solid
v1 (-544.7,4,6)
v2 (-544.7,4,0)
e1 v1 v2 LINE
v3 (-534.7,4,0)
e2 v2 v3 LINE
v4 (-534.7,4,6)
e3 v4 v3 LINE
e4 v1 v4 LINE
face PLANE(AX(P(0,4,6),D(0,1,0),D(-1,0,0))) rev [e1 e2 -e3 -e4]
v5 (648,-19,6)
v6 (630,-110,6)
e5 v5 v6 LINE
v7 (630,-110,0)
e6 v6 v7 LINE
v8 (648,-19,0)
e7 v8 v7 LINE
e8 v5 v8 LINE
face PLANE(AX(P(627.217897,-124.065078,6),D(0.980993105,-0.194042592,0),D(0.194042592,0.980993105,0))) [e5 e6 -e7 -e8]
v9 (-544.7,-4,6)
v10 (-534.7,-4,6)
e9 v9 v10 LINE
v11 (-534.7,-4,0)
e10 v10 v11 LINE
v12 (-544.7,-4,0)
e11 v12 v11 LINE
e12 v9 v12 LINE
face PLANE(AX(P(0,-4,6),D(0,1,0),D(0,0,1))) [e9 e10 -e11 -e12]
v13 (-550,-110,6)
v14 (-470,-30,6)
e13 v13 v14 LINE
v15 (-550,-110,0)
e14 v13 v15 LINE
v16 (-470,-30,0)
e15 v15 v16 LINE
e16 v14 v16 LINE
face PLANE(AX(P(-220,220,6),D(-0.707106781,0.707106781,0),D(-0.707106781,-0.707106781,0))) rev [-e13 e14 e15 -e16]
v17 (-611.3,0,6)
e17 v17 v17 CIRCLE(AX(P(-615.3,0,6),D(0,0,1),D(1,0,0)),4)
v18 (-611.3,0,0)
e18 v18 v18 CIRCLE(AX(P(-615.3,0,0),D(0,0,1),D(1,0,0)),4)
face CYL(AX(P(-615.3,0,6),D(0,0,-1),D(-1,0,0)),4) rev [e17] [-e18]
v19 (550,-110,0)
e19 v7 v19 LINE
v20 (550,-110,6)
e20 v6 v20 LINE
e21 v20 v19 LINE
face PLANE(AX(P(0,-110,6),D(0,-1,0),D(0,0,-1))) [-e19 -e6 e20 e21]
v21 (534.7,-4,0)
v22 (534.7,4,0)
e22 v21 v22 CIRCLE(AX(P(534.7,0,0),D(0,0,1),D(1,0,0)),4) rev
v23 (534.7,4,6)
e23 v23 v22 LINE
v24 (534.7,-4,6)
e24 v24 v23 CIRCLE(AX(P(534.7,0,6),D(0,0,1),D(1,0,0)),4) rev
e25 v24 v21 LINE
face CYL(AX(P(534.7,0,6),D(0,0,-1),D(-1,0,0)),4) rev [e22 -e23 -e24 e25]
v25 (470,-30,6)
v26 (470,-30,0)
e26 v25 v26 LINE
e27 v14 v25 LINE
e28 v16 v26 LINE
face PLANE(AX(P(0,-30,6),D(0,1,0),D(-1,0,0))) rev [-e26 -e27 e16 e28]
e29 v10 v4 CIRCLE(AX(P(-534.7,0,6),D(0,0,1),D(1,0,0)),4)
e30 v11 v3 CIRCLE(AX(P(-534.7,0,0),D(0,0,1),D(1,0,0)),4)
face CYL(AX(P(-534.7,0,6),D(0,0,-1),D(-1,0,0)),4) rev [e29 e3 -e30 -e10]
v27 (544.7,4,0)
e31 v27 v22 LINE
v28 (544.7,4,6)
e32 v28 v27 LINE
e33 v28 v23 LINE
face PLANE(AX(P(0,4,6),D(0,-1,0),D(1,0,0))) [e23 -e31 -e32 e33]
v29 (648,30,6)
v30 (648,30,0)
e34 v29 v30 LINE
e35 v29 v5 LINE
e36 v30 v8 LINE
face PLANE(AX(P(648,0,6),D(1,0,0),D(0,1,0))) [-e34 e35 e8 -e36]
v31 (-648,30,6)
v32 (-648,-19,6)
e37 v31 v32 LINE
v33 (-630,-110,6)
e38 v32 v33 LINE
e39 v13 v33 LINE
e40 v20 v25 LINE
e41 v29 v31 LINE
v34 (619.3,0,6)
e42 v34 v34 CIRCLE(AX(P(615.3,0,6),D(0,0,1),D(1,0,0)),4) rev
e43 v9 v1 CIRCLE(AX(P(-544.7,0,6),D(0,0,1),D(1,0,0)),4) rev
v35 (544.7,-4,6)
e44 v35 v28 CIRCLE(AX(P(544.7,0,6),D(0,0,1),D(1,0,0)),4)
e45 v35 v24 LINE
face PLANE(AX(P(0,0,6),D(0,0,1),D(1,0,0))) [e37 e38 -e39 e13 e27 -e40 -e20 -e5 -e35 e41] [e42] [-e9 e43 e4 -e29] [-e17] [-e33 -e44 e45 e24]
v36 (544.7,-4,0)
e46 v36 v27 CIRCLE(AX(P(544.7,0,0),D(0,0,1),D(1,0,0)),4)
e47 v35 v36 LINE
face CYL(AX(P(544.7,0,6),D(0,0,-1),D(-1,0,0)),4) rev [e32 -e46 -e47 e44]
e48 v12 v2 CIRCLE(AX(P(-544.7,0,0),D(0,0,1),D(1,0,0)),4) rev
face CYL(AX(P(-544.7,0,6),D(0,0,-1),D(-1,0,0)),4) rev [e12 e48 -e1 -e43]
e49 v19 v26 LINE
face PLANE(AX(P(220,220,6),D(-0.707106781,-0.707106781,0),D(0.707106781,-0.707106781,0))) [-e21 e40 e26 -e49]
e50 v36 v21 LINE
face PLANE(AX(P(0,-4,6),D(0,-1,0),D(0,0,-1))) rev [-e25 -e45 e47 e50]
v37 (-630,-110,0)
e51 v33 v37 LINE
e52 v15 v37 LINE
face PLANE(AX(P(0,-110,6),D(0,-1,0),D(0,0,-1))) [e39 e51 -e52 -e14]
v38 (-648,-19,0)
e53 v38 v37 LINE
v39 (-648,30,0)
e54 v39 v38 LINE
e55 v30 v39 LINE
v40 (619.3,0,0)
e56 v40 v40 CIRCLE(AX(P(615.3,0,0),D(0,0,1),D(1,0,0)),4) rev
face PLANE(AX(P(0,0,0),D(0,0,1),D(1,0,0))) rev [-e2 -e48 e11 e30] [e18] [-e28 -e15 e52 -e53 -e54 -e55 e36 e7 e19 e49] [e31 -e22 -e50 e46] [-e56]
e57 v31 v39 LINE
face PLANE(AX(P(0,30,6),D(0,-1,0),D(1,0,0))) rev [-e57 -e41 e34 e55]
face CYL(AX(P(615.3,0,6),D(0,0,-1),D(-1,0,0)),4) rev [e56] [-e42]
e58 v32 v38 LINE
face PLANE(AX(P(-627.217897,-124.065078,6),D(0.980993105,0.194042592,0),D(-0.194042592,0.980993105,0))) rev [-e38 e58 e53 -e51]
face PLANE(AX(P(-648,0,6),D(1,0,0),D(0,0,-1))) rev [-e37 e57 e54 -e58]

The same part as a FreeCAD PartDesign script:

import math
import FreeCAD as App
import Part
import Sketcher

V = App.Vector


def add_polygon(sketch, points):
    """Adds a closed chain of lines whose ends are joined by coincident constraints."""
    first, n = sketch.GeometryCount, len(points)
    for a, b in zip(points, points[1:] + points[:1]):
        sketch.addGeometry(Part.LineSegment(App.Vector(*a, 0), App.Vector(*b, 0)), False)
    for i in range(n):
        sketch.addConstraint(Sketcher.Constraint("Coincident", first + i, 2, first + (i + 1) % n, 1))

doc = App.newDocument("Part")
body = doc.addObject("PartDesign::Body", "Body")

sketch1 = body.newObject("Sketcher::SketchObject", "Sketch")
sketch1.AttachmentSupport = (doc.getObject("XY_Plane"), [""])
sketch1.MapMode = "FlatFace"
add_polygon(sketch1, [(-648, 30), (-648, -19), (-630, -110), (-550, -110), (-470, -30), (470, -30), (550, -110), (630, -110), (648, -19), (648, 30)])
sketch1.addGeometry(Part.Circle(V(-615.3, 0, 0), V(0, 0, 1), 4), False)
sketch1.addGeometry(Part.LineSegment(V(-534.7, -4, 0), V(-544.7, -4, 0)), False)
sketch1.addGeometry(Part.ArcOfCircle(Part.Circle(V(-544.7, 0, 0), V(0, 0, 1), 4), math.radians(90), math.radians(270)), False)
sketch1.addGeometry(Part.LineSegment(V(-544.7, 4, 0), V(-534.7, 4, 0)), False)
sketch1.addGeometry(Part.ArcOfCircle(Part.Circle(V(-534.7, 0, 0), V(0, 0, 1), 4), math.radians(-90), math.radians(90)), False)
sketch1.addGeometry(Part.LineSegment(V(534.7, 4, 0), V(544.7, 4, 0)), False)
sketch1.addGeometry(Part.ArcOfCircle(Part.Circle(V(544.7, 0, 0), V(0, 0, 1), 4), math.radians(-90), math.radians(90)), False)
sketch1.addGeometry(Part.LineSegment(V(544.7, -4, 0), V(534.7, -4, 0)), False)
sketch1.addGeometry(Part.ArcOfCircle(Part.Circle(V(534.7, 0, 0), V(0, 0, 1), 4), math.radians(90), math.radians(270)), False)
sketch1.addGeometry(Part.Circle(V(615.3, 0, 0), V(0, 0, 1), 4), False)
sketch1.addConstraint([
    Sketcher.Constraint("Tangent", 11, 2, 12, 2),
    Sketcher.Constraint("Tangent", 12, 1, 13, 1),
    Sketcher.Constraint("Tangent", 13, 2, 14, 2),
    Sketcher.Constraint("Tangent", 14, 1, 11, 1),
    Sketcher.Constraint("Tangent", 15, 2, 16, 2),
    Sketcher.Constraint("Tangent", 16, 1, 17, 1),
    Sketcher.Constraint("Tangent", 17, 2, 18, 2),
    Sketcher.Constraint("Tangent", 18, 1, 15, 1),
    Sketcher.Constraint("Vertical", 0),
    Sketcher.Constraint("Horizontal", 2),
    Sketcher.Constraint("Horizontal", 4),
    Sketcher.Constraint("Horizontal", 6),
    Sketcher.Constraint("Vertical", 8),
    Sketcher.Constraint("Horizontal", 9),
    Sketcher.Constraint("Horizontal", 11),
    Sketcher.Constraint("Horizontal", 13),
    Sketcher.Constraint("Horizontal", 15),
    Sketcher.Constraint("Horizontal", 17),
    Sketcher.Constraint("Equal", 10, 12),
    Sketcher.Constraint("Equal", 14, 16),
    Sketcher.Constraint("Equal", 18, 19),
    Sketcher.Constraint("Symmetric", 12, 3, 16, 3, -1, 1),
    Sketcher.Constraint("Symmetric", 10, 3, 19, 3, -1, 1),
    Sketcher.Constraint("Symmetric", 14, 3, 18, 3, -2),
    Sketcher.Constraint("Symmetric", 2, 2, 5, 2, -2),
    Sketcher.Constraint("Symmetric", 0, 2, 7, 2, -2),
    Sketcher.Constraint("PointOnObject", 10, 3, -1),
    Sketcher.Constraint("Perpendicular", 3, 5),
    Sketcher.Constraint("Equal", 2, 6),
    Sketcher.Constraint("Equal", 3, 5),
    Sketcher.Constraint("Diameter", 10, 8.0),
    Sketcher.Constraint("DistanceX", 2, 1, 2, 2, 80.0),
    Sketcher.Constraint("DistanceX", 4, 1, 4, 2, 940.0),
    Sketcher.Constraint("DistanceX", 9, 2, 9, 1, 1296.0),
    Sketcher.Constraint("DistanceX", 11, 2, 11, 1, 10.0),
    Sketcher.Constraint("DistanceY", 0, 2, 0, 1, 49.0),
    Sketcher.Constraint("DistanceY", 0, 2, -1, 1, 19.0),
    Sketcher.Constraint("DistanceX", 1, 2, -1, 1, 630.0),
    Sketcher.Constraint("DistanceY", 1, 2, -1, 1, 110.0),
    Sketcher.Constraint("DistanceX", 10, 3, 16, 3, 1160.0),
    Sketcher.Constraint("DistanceX", 10, 3, -1, 1, 615.3),
])
pad1 = body.newObject("PartDesign::Pad", "Pad")
pad1.Profile = sketch1
pad1.Length = 6

doc.recompute()
